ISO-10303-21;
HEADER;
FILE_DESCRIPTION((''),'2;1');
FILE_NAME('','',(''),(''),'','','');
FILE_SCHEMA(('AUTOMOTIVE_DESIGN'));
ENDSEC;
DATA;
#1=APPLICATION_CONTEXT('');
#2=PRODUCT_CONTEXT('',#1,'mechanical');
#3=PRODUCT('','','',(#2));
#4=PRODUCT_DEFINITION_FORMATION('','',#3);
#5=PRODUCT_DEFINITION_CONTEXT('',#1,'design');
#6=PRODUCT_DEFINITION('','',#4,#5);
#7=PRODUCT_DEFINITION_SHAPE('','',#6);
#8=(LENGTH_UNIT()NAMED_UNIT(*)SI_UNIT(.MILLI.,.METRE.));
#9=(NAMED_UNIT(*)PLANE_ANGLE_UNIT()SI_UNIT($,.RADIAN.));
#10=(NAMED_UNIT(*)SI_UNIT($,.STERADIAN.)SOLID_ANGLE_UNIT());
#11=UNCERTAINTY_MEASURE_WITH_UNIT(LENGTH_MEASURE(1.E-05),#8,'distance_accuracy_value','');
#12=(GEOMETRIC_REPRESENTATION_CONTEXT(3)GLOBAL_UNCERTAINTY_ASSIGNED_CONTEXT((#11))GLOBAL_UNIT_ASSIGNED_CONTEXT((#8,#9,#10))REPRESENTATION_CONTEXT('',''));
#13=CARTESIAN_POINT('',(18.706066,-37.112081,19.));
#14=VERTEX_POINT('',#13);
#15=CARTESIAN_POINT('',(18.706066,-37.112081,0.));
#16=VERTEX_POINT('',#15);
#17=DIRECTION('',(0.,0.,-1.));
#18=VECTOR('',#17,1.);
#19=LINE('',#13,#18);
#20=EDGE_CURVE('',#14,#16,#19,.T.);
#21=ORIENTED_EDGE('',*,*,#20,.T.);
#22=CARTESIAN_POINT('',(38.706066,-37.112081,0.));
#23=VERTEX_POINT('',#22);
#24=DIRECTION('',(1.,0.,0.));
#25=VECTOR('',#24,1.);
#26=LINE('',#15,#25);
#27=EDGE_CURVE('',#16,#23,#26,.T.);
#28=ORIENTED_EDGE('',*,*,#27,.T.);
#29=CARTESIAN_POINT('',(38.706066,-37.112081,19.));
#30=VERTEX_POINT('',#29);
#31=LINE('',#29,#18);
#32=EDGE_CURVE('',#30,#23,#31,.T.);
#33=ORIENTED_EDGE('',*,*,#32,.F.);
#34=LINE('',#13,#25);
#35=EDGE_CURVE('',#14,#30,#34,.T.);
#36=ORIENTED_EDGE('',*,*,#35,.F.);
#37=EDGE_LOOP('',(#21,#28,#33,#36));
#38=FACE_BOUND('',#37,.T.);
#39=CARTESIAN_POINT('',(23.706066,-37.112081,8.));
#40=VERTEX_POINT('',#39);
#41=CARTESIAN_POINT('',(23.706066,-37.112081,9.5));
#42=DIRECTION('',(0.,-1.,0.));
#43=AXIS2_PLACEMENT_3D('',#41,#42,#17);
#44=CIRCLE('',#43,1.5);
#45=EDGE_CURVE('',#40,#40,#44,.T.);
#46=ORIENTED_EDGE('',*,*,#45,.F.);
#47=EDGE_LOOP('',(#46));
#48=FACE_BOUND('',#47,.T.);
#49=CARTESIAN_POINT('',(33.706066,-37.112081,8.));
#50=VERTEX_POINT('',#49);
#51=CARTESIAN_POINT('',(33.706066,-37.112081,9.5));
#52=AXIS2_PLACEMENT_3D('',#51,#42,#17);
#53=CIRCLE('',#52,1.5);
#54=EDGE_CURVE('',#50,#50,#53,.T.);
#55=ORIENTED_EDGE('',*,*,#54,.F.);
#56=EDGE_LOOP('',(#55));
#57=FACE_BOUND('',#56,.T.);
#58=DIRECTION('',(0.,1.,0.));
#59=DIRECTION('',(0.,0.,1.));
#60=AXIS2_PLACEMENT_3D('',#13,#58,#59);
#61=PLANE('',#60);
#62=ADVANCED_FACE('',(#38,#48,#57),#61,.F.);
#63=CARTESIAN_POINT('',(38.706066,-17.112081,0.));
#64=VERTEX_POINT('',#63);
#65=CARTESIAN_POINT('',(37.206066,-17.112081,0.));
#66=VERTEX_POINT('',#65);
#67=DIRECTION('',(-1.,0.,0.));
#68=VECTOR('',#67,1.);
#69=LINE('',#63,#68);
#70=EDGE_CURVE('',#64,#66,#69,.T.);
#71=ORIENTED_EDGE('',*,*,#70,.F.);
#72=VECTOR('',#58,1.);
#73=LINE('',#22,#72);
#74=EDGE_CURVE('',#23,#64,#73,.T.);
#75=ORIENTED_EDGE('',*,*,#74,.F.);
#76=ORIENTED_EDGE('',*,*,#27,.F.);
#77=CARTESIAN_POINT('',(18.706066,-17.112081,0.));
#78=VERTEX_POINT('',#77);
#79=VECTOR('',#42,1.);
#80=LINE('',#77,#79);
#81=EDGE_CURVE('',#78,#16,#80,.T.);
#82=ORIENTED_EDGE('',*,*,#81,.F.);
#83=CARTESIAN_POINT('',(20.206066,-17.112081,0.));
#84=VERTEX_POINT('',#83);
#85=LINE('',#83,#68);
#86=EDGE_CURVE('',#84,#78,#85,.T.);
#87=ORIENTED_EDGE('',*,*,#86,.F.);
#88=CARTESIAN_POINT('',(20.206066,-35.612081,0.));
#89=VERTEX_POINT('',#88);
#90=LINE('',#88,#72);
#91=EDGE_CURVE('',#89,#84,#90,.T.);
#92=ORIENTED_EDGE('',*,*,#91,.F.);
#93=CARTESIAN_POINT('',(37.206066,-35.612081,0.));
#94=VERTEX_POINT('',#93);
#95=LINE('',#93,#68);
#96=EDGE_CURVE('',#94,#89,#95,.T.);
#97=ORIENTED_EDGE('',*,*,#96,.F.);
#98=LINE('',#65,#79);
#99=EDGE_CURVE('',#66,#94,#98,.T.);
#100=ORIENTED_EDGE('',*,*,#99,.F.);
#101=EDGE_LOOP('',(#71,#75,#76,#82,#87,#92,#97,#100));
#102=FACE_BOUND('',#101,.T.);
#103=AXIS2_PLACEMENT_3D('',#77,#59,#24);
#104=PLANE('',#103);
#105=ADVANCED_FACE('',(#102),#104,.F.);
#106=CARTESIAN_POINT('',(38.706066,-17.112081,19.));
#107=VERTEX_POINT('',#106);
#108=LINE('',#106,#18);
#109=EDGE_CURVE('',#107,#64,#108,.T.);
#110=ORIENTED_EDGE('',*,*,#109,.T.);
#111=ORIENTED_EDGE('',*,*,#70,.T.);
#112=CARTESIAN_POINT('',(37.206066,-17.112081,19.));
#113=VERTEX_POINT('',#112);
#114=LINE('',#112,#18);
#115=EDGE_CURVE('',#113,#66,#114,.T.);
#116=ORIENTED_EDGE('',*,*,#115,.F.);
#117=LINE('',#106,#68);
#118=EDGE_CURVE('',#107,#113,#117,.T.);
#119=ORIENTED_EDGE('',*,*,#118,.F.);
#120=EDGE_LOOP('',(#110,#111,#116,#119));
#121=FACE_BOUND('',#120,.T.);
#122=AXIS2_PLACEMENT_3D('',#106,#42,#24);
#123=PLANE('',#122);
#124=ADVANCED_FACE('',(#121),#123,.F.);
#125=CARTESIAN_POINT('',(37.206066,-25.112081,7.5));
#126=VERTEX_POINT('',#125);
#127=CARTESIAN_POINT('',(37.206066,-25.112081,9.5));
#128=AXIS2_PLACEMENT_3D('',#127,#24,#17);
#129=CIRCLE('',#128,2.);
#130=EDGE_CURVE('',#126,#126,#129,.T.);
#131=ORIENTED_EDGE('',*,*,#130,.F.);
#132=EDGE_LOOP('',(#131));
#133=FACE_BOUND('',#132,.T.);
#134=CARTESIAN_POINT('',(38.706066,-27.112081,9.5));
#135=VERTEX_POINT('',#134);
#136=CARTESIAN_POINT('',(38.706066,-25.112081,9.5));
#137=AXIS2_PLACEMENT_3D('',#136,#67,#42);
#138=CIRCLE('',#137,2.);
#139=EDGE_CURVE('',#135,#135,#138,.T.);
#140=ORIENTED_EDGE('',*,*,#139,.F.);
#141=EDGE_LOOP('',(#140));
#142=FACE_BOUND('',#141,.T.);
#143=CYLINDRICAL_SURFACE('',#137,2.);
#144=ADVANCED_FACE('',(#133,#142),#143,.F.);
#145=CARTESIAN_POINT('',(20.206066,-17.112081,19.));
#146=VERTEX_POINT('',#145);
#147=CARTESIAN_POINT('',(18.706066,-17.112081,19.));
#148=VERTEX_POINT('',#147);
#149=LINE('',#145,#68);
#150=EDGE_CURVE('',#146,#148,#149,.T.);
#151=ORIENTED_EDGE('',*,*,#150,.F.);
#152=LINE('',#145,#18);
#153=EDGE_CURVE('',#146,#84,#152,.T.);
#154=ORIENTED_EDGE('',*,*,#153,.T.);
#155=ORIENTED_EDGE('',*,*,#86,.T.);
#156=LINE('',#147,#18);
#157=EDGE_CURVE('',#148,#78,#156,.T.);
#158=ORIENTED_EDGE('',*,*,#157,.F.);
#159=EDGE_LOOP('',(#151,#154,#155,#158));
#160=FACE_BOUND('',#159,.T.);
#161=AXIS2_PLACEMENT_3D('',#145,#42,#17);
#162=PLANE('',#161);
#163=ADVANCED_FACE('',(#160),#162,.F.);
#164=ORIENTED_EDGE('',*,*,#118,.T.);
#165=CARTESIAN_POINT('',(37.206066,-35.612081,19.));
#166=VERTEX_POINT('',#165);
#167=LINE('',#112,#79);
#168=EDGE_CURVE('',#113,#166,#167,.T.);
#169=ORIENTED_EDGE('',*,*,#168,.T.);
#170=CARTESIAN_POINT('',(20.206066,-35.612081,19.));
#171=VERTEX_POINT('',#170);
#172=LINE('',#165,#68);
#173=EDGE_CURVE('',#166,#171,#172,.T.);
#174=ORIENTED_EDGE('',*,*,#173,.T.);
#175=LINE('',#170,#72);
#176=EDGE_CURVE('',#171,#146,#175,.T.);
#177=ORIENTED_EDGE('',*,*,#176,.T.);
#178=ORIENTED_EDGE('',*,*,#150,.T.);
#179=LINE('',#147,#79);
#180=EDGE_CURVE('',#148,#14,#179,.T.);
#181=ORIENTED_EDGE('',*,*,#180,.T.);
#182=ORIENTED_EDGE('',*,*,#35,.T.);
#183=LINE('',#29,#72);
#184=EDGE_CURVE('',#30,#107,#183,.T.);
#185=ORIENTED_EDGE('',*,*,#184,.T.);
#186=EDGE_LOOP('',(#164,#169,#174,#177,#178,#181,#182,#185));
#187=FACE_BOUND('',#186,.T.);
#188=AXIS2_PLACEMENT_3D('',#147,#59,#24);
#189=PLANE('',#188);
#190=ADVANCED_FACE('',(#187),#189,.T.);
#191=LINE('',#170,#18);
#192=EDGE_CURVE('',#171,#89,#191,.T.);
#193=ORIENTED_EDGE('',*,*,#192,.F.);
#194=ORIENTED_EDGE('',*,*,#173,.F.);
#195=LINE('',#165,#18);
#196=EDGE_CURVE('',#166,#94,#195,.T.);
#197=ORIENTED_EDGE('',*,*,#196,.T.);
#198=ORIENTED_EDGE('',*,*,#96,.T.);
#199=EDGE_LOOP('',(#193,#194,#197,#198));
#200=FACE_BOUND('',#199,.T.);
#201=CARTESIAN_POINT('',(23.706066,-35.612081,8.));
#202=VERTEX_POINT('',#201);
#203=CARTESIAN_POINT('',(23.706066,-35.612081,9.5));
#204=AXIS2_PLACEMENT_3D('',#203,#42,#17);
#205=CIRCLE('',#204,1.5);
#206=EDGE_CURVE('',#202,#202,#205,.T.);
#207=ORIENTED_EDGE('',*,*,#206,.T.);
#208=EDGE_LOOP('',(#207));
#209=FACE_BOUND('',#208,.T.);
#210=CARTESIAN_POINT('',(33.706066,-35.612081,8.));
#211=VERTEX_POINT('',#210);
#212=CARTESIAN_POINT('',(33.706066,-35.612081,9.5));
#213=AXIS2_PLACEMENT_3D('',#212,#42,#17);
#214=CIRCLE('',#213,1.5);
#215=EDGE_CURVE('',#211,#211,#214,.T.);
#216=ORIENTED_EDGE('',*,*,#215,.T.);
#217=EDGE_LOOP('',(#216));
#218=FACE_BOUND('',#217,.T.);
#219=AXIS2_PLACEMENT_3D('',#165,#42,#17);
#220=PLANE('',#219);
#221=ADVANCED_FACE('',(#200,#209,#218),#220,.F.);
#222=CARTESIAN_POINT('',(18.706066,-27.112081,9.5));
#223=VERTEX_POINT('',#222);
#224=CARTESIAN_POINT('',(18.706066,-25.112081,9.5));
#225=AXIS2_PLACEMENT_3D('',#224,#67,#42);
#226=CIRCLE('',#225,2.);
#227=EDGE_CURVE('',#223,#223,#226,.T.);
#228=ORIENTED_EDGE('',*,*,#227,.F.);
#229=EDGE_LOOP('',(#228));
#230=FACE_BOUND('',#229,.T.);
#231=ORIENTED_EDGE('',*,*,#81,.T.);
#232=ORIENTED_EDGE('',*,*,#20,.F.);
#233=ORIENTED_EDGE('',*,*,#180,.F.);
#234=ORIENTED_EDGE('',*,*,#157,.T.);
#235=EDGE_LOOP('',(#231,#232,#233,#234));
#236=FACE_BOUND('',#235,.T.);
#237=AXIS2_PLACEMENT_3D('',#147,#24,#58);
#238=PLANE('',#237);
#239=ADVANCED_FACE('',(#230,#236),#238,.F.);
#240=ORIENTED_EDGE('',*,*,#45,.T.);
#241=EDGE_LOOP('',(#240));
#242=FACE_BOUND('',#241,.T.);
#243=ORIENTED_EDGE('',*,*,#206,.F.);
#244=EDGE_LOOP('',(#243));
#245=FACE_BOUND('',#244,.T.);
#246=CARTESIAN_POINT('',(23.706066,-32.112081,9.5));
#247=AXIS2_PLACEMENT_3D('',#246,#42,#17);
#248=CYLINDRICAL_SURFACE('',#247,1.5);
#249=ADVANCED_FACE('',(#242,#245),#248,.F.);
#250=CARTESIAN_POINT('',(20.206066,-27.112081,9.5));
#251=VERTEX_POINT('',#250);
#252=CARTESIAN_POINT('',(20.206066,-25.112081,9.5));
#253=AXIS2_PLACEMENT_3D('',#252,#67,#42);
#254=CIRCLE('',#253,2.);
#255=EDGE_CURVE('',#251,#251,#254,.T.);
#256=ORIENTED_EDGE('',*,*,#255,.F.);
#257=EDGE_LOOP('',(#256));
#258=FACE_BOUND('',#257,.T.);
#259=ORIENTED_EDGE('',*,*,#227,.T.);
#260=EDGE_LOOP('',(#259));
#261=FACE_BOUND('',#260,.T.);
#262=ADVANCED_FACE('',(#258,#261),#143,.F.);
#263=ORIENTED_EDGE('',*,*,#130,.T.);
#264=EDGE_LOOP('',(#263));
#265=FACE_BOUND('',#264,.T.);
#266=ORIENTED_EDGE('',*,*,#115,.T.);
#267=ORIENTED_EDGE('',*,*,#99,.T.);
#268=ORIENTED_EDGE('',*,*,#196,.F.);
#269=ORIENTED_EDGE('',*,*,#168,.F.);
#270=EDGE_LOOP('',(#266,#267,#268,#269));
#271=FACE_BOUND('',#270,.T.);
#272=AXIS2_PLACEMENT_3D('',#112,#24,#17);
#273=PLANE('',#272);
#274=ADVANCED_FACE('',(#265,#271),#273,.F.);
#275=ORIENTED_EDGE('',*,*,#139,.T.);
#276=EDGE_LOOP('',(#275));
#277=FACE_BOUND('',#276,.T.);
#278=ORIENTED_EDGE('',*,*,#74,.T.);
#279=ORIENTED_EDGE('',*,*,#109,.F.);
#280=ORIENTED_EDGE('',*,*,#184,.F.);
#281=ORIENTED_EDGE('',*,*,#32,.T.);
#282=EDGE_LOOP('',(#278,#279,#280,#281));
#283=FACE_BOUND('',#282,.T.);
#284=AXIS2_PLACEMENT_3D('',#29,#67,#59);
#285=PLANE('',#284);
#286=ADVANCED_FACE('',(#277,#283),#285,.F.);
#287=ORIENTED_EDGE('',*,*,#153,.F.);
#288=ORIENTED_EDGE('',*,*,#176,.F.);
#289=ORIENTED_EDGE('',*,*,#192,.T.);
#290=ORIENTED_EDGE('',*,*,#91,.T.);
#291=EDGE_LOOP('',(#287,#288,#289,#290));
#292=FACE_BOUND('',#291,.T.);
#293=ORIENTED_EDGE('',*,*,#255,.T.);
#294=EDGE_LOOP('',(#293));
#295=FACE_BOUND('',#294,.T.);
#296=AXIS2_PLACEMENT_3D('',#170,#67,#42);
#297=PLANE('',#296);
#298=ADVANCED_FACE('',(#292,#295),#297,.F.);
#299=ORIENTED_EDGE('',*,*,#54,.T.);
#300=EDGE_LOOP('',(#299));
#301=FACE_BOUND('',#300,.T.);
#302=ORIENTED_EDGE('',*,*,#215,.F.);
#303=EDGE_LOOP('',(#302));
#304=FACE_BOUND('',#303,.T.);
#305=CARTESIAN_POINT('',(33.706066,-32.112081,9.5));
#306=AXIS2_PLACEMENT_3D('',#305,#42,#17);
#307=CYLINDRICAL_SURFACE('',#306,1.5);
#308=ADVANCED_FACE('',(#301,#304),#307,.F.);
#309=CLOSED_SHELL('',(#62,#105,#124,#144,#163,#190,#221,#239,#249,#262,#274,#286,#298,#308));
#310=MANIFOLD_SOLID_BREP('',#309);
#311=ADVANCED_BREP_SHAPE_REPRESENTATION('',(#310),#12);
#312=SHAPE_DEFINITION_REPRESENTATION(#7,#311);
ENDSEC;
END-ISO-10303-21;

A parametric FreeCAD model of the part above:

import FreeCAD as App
import Part
import Sketcher

V = App.Vector


def add_polygon(sketch, points):
    """Adds a closed chain of lines whose ends are joined by coincident constraints."""
    first, n = sketch.GeometryCount, len(points)
    for a, b in zip(points, points[1:] + points[:1]):
        sketch.addGeometry(Part.LineSegment(App.Vector(*a, 0), App.Vector(*b, 0)), False)
    for i in range(n):
        sketch.addConstraint(Sketcher.Constraint("Coincident", first + i, 2, first + (i + 1) % n, 1))

doc = App.newDocument("Part")
body = doc.addObject("PartDesign::Body", "Body")

# Sketch on XY plane
sketch1 = body.newObject("Sketcher::SketchObject", "Sketch")
sketch1.AttachmentSupport = (doc.getObject("XY_Plane"), [""])
sketch1.MapMode = "FlatFace"
add_polygon(sketch1, [(18.7, -17.1), (18.7, -37.1), (38.7, -37.1), (38.7, -17.1), (37.2, -17.1), (37.2, -35.6), (20.2, -35.6), (20.2, -17.1)])  # lines 0-7
sketch1.addConstraint([
    Sketcher.Constraint("Vertical", 0),
    Sketcher.Constraint("Horizontal", 1),
    Sketcher.Constraint("Vertical", 2),
    Sketcher.Constraint("Horizontal", 3),
    Sketcher.Constraint("Vertical", 4),
    Sketcher.Constraint("Horizontal", 5),
    Sketcher.Constraint("Vertical", 6),
    Sketcher.Constraint("Horizontal", 7),
    Sketcher.Constraint("Horizontal", 3, 2, 6, 2),
    Sketcher.Constraint("Equal", 3, 7),
    Sketcher.Constraint("Equal", 1, 0),
    Sketcher.Constraint("DistanceX", 1, 1, 1, 2, 20.0),
    Sketcher.Constraint("DistanceX", 5, 2, 5, 1, 17.0),
    Sketcher.Constraint("DistanceY", 4, 2, 4, 1, 18.5),
    Sketcher.Constraint("DistanceY", 0, 2, -1, 1, 37.112081),
    Sketcher.Constraint("DistanceX", -1, 1, 0, 2, 18.706066),
])
pad1 = body.newObject("PartDesign::Pad", "Pad")
pad1.Profile = sketch1
pad1.Length = 19

# Sketch on XZ plane
sketch2 = body.newObject("Sketcher::SketchObject", "Sketch001")
sketch2.AttachmentSupport = (doc.getObject("XZ_Plane"), [""])
sketch2.MapMode = "FlatFace"
sketch2.AttachmentOffset = App.Placement(V(0, 0, 37.112081), App.Rotation())
sketch2.addGeometry([
    Part.Circle(V(23.7, 9.5, 0), V(0, 0, 1), 1.5),
    Part.Circle(V(33.7, 9.5, 0), V(0, 0, 1), 1.5),
], False)
sketch2.addConstraint([
    Sketcher.Constraint("Equal", 0, 1),
    Sketcher.Constraint("Horizontal", 0, 3, 1, 3),
    Sketcher.Constraint("Diameter", 0, 3.0),
    Sketcher.Constraint("DistanceX", 0, 3, 1, 3, 10.0),
    Sketcher.Constraint("DistanceY", -1, 1, 0, 3, 9.5),
    Sketcher.Constraint("DistanceX", -1, 1, 0, 3, 23.706066),
])
pocket1 = body.newObject("PartDesign::Pocket", "Pocket")
pocket1.Profile = sketch2
pocket1.Length = 5

# Sketch on YZ plane
sketch3 = body.newObject("Sketcher::SketchObject", "Sketch002")
sketch3.AttachmentSupport = (doc.getObject("YZ_Plane"), [""])
sketch3.MapMode = "FlatFace"
sketch3.AttachmentOffset = App.Placement(V(0, 0, 18.706066), App.Rotation())
sketch3.addGeometry(Part.Circle(V(-25.1, 9.5, 0), V(0, 0, 1), 2), False)
sketch3.addConstraint([
    Sketcher.Constraint("Diameter", 0, 4.0),
    Sketcher.Constraint("DistanceY", -1, 1, 0, 3, 9.5),
    Sketcher.Constraint("DistanceX", 0, 3, -1, 1, 25.112081),
])
pocket2 = body.newObject("PartDesign::Pocket", "Pocket001")
pocket2.Profile = sketch3
pocket2.Type = "ThroughAll"
pocket2.Reversed = True

doc.recompute()
